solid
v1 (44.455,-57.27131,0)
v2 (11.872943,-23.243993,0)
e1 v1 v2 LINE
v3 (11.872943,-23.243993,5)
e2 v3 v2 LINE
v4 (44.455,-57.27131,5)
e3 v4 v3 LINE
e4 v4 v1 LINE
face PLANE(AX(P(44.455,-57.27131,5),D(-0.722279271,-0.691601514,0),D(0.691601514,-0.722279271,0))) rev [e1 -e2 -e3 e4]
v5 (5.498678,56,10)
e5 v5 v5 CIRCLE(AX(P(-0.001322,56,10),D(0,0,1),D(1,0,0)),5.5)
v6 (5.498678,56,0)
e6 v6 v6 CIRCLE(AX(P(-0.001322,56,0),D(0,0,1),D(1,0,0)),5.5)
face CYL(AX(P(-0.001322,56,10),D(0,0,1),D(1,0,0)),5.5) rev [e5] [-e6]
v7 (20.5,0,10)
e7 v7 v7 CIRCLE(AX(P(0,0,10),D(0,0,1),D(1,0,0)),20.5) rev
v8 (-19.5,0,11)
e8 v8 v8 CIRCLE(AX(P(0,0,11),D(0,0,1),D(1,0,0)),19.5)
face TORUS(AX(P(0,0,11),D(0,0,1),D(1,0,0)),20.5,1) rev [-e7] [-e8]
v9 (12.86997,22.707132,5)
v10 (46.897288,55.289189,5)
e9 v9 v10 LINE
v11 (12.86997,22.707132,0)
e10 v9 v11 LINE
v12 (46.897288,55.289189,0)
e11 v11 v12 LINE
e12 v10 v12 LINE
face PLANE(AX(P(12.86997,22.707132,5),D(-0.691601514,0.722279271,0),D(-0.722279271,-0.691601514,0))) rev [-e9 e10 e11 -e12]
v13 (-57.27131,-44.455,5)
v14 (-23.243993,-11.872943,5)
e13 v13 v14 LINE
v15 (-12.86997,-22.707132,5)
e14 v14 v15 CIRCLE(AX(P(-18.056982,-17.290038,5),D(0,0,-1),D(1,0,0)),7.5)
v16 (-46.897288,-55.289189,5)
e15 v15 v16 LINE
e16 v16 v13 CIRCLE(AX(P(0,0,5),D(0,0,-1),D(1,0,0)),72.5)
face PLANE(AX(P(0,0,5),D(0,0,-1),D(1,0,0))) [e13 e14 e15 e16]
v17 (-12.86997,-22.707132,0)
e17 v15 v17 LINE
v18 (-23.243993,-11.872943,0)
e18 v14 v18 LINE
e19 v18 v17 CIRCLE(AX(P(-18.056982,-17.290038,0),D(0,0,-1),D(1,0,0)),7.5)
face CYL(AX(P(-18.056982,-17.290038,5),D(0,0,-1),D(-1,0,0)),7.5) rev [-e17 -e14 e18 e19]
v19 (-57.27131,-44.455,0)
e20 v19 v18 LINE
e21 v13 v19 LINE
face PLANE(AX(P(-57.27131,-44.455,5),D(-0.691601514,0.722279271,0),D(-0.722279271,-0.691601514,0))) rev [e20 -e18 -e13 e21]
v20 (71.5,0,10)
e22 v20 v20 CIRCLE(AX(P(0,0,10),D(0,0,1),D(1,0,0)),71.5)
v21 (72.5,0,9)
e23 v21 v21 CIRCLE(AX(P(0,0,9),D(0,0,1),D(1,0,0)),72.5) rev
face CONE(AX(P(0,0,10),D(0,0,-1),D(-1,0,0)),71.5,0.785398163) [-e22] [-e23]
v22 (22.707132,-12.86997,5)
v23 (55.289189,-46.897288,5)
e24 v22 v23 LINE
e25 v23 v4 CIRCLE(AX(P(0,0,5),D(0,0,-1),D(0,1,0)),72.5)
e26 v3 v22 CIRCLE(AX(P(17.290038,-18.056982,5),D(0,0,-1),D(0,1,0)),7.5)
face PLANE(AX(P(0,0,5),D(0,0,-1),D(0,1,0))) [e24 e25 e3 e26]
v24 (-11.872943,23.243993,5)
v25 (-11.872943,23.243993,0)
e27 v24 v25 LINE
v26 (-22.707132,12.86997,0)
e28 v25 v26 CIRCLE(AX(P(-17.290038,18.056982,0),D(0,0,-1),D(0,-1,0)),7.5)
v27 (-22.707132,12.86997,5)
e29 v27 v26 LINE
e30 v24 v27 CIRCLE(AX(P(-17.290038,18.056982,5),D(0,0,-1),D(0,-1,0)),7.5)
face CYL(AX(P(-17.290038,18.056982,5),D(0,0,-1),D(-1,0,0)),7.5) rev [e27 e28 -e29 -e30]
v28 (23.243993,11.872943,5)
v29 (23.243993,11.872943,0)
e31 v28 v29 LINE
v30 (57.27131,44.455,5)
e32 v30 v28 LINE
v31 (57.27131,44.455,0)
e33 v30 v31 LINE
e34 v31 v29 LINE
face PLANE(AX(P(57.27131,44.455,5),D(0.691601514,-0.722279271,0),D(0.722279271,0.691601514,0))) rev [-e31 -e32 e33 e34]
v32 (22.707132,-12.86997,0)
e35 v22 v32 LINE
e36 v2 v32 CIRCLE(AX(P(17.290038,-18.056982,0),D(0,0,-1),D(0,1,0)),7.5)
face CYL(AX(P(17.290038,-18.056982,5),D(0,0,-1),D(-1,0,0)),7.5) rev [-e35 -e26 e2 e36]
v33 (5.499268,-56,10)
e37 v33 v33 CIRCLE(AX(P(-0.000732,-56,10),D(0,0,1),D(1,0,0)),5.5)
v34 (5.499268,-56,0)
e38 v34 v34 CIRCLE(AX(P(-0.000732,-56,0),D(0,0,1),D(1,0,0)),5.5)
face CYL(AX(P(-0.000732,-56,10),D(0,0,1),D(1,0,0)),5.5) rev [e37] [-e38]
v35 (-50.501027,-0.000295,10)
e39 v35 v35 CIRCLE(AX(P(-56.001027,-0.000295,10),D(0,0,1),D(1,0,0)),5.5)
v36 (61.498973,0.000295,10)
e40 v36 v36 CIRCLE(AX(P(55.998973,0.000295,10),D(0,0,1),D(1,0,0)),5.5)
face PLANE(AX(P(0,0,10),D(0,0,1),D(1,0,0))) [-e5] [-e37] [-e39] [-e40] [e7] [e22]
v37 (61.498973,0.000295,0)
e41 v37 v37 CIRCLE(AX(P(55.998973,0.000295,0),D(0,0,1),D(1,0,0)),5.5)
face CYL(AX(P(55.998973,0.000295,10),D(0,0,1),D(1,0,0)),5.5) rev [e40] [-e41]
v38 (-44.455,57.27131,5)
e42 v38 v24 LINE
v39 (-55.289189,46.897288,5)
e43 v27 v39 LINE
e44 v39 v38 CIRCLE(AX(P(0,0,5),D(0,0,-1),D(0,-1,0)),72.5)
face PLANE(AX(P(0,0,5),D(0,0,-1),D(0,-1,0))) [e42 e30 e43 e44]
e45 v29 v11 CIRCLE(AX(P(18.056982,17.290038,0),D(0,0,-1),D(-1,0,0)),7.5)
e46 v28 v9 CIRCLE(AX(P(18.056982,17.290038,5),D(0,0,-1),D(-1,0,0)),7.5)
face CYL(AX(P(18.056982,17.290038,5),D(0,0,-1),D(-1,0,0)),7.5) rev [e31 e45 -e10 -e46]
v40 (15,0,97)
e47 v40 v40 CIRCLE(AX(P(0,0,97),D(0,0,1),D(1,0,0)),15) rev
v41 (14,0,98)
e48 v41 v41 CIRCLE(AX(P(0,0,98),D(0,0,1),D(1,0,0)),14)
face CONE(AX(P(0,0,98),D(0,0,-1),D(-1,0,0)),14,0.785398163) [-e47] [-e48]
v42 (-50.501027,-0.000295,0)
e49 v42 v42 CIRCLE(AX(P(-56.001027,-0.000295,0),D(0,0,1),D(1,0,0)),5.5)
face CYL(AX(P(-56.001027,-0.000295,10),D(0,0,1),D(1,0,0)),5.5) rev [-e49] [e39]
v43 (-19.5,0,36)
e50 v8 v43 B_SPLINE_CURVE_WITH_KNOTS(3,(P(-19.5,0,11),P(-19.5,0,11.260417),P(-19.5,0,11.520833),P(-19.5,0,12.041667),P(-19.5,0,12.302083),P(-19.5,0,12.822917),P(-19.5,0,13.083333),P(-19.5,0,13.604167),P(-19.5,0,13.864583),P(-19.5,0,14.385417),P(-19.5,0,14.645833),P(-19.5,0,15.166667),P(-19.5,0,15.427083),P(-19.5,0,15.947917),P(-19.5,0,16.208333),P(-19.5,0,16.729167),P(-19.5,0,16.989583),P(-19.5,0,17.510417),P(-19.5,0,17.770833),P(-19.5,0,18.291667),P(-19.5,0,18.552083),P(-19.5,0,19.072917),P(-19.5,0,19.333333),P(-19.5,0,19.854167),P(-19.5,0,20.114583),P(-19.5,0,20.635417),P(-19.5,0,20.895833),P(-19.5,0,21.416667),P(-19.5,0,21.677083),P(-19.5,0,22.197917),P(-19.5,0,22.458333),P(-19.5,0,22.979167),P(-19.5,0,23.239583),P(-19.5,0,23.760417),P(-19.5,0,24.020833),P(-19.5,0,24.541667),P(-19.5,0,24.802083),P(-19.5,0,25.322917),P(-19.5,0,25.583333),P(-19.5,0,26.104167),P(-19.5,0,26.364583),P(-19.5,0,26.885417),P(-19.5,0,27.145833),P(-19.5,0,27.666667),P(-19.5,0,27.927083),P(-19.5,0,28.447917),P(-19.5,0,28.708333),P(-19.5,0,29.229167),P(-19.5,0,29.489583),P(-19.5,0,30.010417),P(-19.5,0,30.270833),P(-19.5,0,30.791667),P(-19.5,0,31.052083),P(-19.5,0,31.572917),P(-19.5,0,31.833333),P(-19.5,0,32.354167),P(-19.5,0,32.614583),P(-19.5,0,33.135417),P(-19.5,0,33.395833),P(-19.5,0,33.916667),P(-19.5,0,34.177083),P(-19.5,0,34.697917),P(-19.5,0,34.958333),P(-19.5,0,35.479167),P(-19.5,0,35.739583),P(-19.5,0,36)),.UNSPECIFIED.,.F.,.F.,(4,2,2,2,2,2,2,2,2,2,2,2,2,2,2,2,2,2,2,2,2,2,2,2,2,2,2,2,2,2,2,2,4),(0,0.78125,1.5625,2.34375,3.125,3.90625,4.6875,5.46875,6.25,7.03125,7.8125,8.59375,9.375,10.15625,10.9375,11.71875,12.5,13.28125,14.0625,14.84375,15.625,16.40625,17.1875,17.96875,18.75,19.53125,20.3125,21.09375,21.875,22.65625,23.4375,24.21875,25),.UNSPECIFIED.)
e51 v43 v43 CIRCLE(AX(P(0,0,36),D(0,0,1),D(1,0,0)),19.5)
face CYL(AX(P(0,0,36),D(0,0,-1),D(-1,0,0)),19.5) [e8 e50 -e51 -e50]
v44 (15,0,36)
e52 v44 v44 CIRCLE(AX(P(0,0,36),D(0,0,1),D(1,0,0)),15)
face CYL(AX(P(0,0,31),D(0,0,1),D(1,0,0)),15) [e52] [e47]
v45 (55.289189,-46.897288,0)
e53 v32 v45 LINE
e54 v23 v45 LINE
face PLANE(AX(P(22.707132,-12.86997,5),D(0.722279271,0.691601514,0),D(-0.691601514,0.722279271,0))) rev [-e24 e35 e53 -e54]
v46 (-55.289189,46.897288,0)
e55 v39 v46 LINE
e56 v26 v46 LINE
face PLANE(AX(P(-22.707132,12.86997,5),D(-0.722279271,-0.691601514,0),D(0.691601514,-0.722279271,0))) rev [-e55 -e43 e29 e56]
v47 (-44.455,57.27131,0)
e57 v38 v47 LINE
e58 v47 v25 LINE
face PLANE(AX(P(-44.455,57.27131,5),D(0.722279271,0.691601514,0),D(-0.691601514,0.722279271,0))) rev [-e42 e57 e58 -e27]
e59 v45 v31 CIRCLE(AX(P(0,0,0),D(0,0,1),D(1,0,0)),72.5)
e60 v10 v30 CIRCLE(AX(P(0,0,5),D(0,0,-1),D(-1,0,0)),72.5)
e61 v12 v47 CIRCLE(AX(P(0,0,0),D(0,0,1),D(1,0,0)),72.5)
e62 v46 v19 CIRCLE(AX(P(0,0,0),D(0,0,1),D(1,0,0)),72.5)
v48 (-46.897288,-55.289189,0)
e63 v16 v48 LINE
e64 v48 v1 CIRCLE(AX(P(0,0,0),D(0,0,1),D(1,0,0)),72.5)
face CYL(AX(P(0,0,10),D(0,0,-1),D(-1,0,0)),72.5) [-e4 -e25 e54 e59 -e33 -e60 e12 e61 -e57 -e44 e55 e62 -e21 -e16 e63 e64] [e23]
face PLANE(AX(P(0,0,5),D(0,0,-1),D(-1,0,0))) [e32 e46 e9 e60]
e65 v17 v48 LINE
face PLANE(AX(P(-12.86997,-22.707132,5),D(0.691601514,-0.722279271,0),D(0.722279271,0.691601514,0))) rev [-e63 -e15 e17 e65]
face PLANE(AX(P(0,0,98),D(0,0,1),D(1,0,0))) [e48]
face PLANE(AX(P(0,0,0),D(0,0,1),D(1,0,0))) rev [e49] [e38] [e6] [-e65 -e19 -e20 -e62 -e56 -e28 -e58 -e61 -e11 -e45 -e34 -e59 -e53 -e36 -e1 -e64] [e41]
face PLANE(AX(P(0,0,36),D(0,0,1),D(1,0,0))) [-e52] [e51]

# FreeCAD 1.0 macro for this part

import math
import FreeCAD as App
import Part
import Sketcher


def edges_at(feature, points):
    """Names of the edges that pass closest to the given points."""
    edges = feature.Shape.Edges
    near = lambda p: min(range(len(edges)), key=lambda i: edges[i].distToShape(Part.Vertex(*p))[0])
    return sorted({f"Edge{near(p) + 1}" for p in points})

doc = App.newDocument("Part")
body = doc.addObject("PartDesign::Body", "Body")

# Sketch on XY plane
sketch1 = body.newObject("Sketcher::SketchObject", "Sketch")
sketch1.AttachmentSupport = (doc.getObject("XY_Plane"), [""])
sketch1.MapMode = "FlatFace"
sketch1.addGeometry(Part.Circle(App.Vector(0, 0, 0), App.Vector(0, 0, 1), 72), False)
sketch1.addConstraint([
    Sketcher.Constraint("Coincident", 0, 3, -1, 1),
    Sketcher.Constraint("Diameter", 0, 145.0),
])
pad1 = body.newObject("PartDesign::Pad", "Pad")
pad1.Profile = sketch1
pad1.Length = 10

# Sketch on XY plane
sketch2 = body.newObject("Sketcher::SketchObject", "Sketch001")
sketch2.AttachmentSupport = (doc.getObject("XY_Plane"), [""])
sketch2.MapMode = "FlatFace"
sketch2.AttachmentOffset = App.Placement(App.Vector(0, 0, 10), App.Rotation())
sketch2.addGeometry(Part.Circle(App.Vector(0, 0, 0), App.Vector(0, 0, 1), 20), False)
sketch2.addConstraint([
    Sketcher.Constraint("Coincident", 0, 3, -1, 1),
    Sketcher.Constraint("Diameter", 0, 39.0),
])
pad2 = body.newObject("PartDesign::Pad", "Pad001")
pad2.Profile = sketch2
pad2.Length = 26

# Sketch on XY plane
sketch3 = body.newObject("Sketcher::SketchObject", "Sketch002")
sketch3.AttachmentSupport = (doc.getObject("XY_Plane"), [""])
sketch3.MapMode = "FlatFace"
sketch3.AttachmentOffset = App.Placement(App.Vector(0, 0, 36), App.Rotation())
sketch3.addGeometry(Part.Circle(App.Vector(0, 0, 0), App.Vector(0, 0, 1), 15), False)
sketch3.addConstraint([
    Sketcher.Constraint("Coincident", 0, 3, -1, 1),
    Sketcher.Constraint("Diameter", 0, 30.0),
])
pad3 = body.newObject("PartDesign::Pad", "Pad002")
pad3.Profile = sketch3
pad3.Type = "TwoLengths"
pad3.Length = 62
pad3.Length2 = 5
doc.recompute()

chamfer = body.newObject("PartDesign::Chamfer", "Chamfer")
chamfer.Base = (pad3, edges_at(pad3, [(-72.5, 0, 10)]))
chamfer.Size = 1
doc.recompute()

fillet = body.newObject("PartDesign::Fillet", "Fillet")
fillet.Base = (chamfer, edges_at(chamfer, [(19.5, 0, 10)]))
fillet.Radius = 1

# Sketch on XY plane
sketch4 = body.newObject("Sketcher::SketchObject", "Sketch003")
sketch4.AttachmentSupport = (doc.getObject("XY_Plane"), [""])
sketch4.MapMode = "FlatFace"
sketch4.addGeometry([
    Part.LineSegment(App.Vector(57, 44, 0), App.Vector(23, 12, 0)),
    Part.ArcOfCircle(Part.Circle(App.Vector(18, 17, 0), App.Vector(0, 0, 1), 8), math.radians(134), math.radians(314)),
    Part.LineSegment(App.Vector(13, 23, 0), App.Vector(47, 55, 0)),
    Part.ArcOfCircle(Part.Circle(App.Vector(0, 0, 0), App.Vector(0, 0, 1), 72), math.radians(37.82), math.radians(49.69)),
], False)
sketch4.addConstraint([
    Sketcher.Constraint("Tangent", 0, 2, 1, 2),
    Sketcher.Constraint("Tangent", 1, 1, 2, 1),
    Sketcher.Constraint("Coincident", 2, 2, 3, 2),
    Sketcher.Constraint("Coincident", 3, 1, 0, 1),
    Sketcher.Constraint("Coincident", 3, 3, -1, 1),
    Sketcher.Constraint("Parallel", 0, 2),
    Sketcher.Constraint("Equal", 0, 2),
    Sketcher.Constraint("Radius", 1, 7.5),
    Sketcher.Constraint("Radius", 3, 72.5),
    Sketcher.Constraint("DistanceY", -1, 1, 3, 1, 44.455),
    Sketcher.Constraint("DistanceX", -1, 1, 1, 3, 18.056982),
])
pocket1 = body.newObject("PartDesign::Pocket", "Pocket")
pocket1.Profile = sketch4
pocket1.Length = 5
pocket1.Reversed = True
doc.recompute()

polarpattern = body.newObject("PartDesign::PolarPattern", "PolarPattern")
polarpattern.Originals = [pocket1]
polarpattern.Axis = (doc.getObject("Z_Axis"), [""])
polarpattern.Angle = 360
polarpattern.Occurrences = 4
body.Tip = polarpattern
doc.recompute()

chamfer2 = body.newObject("PartDesign::Chamfer", "Chamfer001")
chamfer2.Base = (polarpattern, edges_at(polarpattern, [(-15, 0, 98)]))
chamfer2.Size = 1

# Sketch on XY plane
sketch5 = body.newObject("Sketcher::SketchObject", "Sketch004")
sketch5.AttachmentSupport = (doc.getObject("XY_Plane"), [""])
sketch5.MapMode = "FlatFace"
sketch5.AttachmentOffset = App.Placement(App.Vector(0, 0, 10), App.Rotation())
sketch5.addGeometry([
    Part.Circle(App.Vector(0, 56, 0), App.Vector(0, 0, 1), 6),
    Part.Circle(App.Vector(0, -56, 0), App.Vector(0, 0, 1), 6),
    Part.Circle(App.Vector(-56, 0, 0), App.Vector(0, 0, 1), 6),
    Part.Circle(App.Vector(56, 0, 0), App.Vector(0, 0, 1), 6),
], False)
sketch5.addConstraint([
    Sketcher.Constraint("Equal", 0, 1),
    Sketcher.Constraint("Equal", 1, 2),
    Sketcher.Constraint("Equal", 2, 3),
    Sketcher.Constraint("Diameter", 0, 11.0),
    Sketcher.Constraint("DistanceY", -1, 1, 0, 3, 56.0),
    Sketcher.Constraint("DistanceY", 1, 3, -1, 1, 56.0),
    Sketcher.Constraint("DistanceX", 2, 3, 3, 3, 112.0),
    Sketcher.Constraint("DistanceX", 1, 3, -1, 1, 0.000732),
    Sketcher.Constraint("DistanceX", 0, 3, 1, 3, 0.00059),
    Sketcher.Constraint("DistanceY", 2, 3, 3, 3, 0.00059),
    Sketcher.Constraint("DistanceX", 2, 3, -1, 1, 56.001027),
    Sketcher.Constraint("DistanceY", 2, 3, -1, 1, 0.000295),
])
doc.recompute()
hole = body.newObject("PartDesign::Hole", "Hole")
hole.Profile = sketch5
hole.ThreadType = "None"
hole.Diameter = 11
hole.DepthType = "ThroughAll"

doc.recompute()
